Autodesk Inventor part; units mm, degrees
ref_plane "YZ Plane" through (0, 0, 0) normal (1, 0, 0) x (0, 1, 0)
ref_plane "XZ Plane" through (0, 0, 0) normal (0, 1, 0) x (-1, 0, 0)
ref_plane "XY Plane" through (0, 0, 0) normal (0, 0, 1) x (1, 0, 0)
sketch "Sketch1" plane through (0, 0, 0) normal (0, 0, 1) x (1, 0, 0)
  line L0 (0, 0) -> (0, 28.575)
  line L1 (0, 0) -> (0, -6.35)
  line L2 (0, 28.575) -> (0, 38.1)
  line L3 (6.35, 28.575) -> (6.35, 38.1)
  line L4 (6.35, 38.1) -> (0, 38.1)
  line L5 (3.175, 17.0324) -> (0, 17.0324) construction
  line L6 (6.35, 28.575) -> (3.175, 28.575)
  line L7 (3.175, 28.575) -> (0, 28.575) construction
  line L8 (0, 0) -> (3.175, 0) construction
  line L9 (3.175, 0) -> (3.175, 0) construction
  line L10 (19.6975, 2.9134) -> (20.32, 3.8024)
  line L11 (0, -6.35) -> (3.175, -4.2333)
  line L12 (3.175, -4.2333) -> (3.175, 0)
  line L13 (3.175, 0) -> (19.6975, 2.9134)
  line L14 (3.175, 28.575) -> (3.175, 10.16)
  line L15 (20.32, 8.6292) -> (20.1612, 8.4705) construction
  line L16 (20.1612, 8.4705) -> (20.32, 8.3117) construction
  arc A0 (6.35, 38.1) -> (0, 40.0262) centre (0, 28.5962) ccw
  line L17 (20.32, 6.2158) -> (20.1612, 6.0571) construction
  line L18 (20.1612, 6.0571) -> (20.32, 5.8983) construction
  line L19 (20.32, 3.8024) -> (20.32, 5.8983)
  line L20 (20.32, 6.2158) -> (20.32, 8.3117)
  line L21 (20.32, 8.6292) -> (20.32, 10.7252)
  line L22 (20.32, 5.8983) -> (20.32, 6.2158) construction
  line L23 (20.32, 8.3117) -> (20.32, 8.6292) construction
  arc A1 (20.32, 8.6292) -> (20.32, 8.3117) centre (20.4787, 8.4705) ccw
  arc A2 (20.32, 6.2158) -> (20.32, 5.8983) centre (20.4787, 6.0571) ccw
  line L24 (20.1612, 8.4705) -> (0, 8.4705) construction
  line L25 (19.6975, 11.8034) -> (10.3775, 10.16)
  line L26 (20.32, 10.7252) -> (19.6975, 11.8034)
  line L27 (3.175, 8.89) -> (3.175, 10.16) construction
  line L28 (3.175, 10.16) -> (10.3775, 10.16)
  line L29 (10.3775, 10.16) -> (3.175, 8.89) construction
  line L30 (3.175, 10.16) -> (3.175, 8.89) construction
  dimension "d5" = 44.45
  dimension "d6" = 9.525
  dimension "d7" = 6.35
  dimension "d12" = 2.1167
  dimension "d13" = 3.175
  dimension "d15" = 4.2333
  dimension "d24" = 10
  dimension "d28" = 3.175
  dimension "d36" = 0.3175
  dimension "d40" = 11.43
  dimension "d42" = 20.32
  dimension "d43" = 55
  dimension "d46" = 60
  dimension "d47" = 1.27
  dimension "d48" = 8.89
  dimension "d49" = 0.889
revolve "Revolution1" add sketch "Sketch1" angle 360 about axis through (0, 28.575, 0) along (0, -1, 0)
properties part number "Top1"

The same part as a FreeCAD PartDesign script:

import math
import FreeCAD as App
import Part
import Sketcher
Q = App.Units.Quantity

doc = App.newDocument("Part")
params = doc.addObject("Spreadsheet::Sheet", "Params")
for row, (alias, value) in enumerate([
    ("sketch1_width", "0.25 in"),
    ("sketch1_height", "1.75 in"),
    ("sketch1_width2", "0.125 in"),
    ("sketch1_height2", "0.375 in"),
    ("revolution_angle", "360 deg"),
], start=1):
    params.set(f"A{row}", alias)
    params.set(f"B{row}", "=" + value)
    params.setAlias(f"B{row}", alias)

body = doc.addObject("PartDesign::Body", "Body")

sketch1 = body.newObject("Sketcher::SketchObject", "Sketch")
sketch1.AttachmentSupport = (doc.getObject("XY_Plane"), [""])
sketch1.MapMode = "FlatFace"
sketch1.addGeometry(Part.LineSegment(App.Vector(0, 38.1, 0), App.Vector(0, -6.35, 0)), False)
sketch1.addGeometry(Part.LineSegment(App.Vector(0, -6.35, 0), App.Vector(3.17, -4.23, 0)), False)
sketch1.addGeometry(Part.LineSegment(App.Vector(3.17, -4.23, 0), App.Vector(3.17, 0, 0)), False)
sketch1.addGeometry(Part.LineSegment(App.Vector(3.17, 0, 0), App.Vector(19.7, 2.91, 0)), False)
sketch1.addGeometry(Part.LineSegment(App.Vector(19.7, 2.91, 0), App.Vector(20.32, 3.8, 0)), False)
sketch1.addGeometry(Part.LineSegment(App.Vector(20.32, 3.8, 0), App.Vector(20.32, 5.9, 0)), False)
sketch1.addGeometry(Part.ArcOfCircle(Part.Circle(App.Vector(20.48, 6.06, 0), App.Vector(0, 0, 1), 0.22), math.radians(135), math.radians(225)), False)
sketch1.addGeometry(Part.LineSegment(App.Vector(20.32, 6.22, 0), App.Vector(20.32, 8.31, 0)), False)
sketch1.addGeometry(Part.ArcOfCircle(Part.Circle(App.Vector(20.48, 8.47, 0), App.Vector(0, 0, 1), 0.22), math.radians(135), math.radians(225)), False)
sketch1.addGeometry(Part.LineSegment(App.Vector(20.32, 8.63, 0), App.Vector(20.32, 10.73, 0)), False)
sketch1.addGeometry(Part.LineSegment(App.Vector(20.32, 10.73, 0), App.Vector(19.7, 11.8, 0)), False)
sketch1.addGeometry(Part.LineSegment(App.Vector(19.7, 11.8, 0), App.Vector(10.38, 10.16, 0)), False)
sketch1.addGeometry(Part.LineSegment(App.Vector(10.38, 10.16, 0), App.Vector(3.17, 10.16, 0)), False)
sketch1.addGeometry(Part.LineSegment(App.Vector(3.17, 10.16, 0), App.Vector(3.17, 28.57, 0)), False)
sketch1.addGeometry(Part.LineSegment(App.Vector(3.17, 28.57, 0), App.Vector(6.35, 28.57, 0)), False)
sketch1.addGeometry(Part.LineSegment(App.Vector(6.35, 28.57, 0), App.Vector(6.35, 38.1, 0)), False)
sketch1.addGeometry(Part.LineSegment(App.Vector(6.35, 38.1, 0), App.Vector(0, 38.1, 0)), False)
sketch1.addConstraint(Sketcher.Constraint("Coincident", 0, 2, 1, 1))
sketch1.addConstraint(Sketcher.Constraint("Coincident", 1, 2, 2, 1))
sketch1.addConstraint(Sketcher.Constraint("Coincident", 2, 2, 3, 1))
sketch1.addConstraint(Sketcher.Constraint("Coincident", 3, 2, 4, 1))
sketch1.addConstraint(Sketcher.Constraint("Coincident", 4, 2, 5, 1))
sketch1.addConstraint(Sketcher.Constraint("Coincident", 5, 2, 6, 2))
sketch1.addConstraint(Sketcher.Constraint("Coincident", 6, 1, 7, 1))
sketch1.addConstraint(Sketcher.Constraint("Coincident", 7, 2, 8, 2))
sketch1.addConstraint(Sketcher.Constraint("Coincident", 8, 1, 9, 1))
sketch1.addConstraint(Sketcher.Constraint("Coincident", 9, 2, 10, 1))
sketch1.addConstraint(Sketcher.Constraint("Coincident", 10, 2, 11, 1))
sketch1.addConstraint(Sketcher.Constraint("Coincident", 11, 2, 12, 1))
sketch1.addConstraint(Sketcher.Constraint("Coincident", 12, 2, 13, 1))
sketch1.addConstraint(Sketcher.Constraint("Coincident", 13, 2, 14, 1))
sketch1.addConstraint(Sketcher.Constraint("Coincident", 14, 2, 15, 1))
sketch1.addConstraint(Sketcher.Constraint("Coincident", 15, 2, 16, 1))
sketch1.addConstraint(Sketcher.Constraint("Coincident", 16, 2, 0, 1))
sketch1.addConstraint(Sketcher.Constraint("Vertical", 0))
sketch1.addConstraint(Sketcher.Constraint("Vertical", 2))
sketch1.addConstraint(Sketcher.Constraint("Vertical", 5))
sketch1.addConstraint(Sketcher.Constraint("Vertical", 7))
sketch1.addConstraint(Sketcher.Constraint("Vertical", 9))
sketch1.addConstraint(Sketcher.Constraint("Horizontal", 12))
sketch1.addConstraint(Sketcher.Constraint("Vertical", 13))
sketch1.addConstraint(Sketcher.Constraint("Horizontal", 14))
sketch1.addConstraint(Sketcher.Constraint("Vertical", 15))
sketch1.addConstraint(Sketcher.Constraint("Horizontal", 16))
sketch1.addConstraint(Sketcher.Constraint("Equal", 6, 8))
sketch1.addConstraint(Sketcher.Constraint("PointOnObject", 0, 2, -2))
sketch1.addConstraint(Sketcher.Constraint("PointOnObject", 2, 2, -1))
sketch1.addConstraint(Sketcher.Constraint("Parallel", 3, 11))
sketch1.addConstraint(Sketcher.Constraint("Vertical", 6, 3, 8, 3))
sketch1.addConstraint(Sketcher.Constraint("Vertical", 5, 2, 6, 1))
sketch1.addConstraint(Sketcher.Constraint("Vertical", 7, 2, 8, 1))
sketch1.addConstraint(Sketcher.Constraint("Vertical", 3, 2, 10, 2))
sketch1.addConstraint(Sketcher.Constraint("Vertical", 2, 2, 12, 2))
sketch1.addConstraint(Sketcher.Constraint("Equal", 5, 7))
sketch1.addConstraint(Sketcher.Constraint("Equal", 7, 9))
sketch1.addConstraint(Sketcher.Constraint("Angle", 3, Q("10.0001 deg")))
sketch1.addConstraint(Sketcher.Constraint("DistanceX", 16, 2, 16, 1, Q("0.25 in")))
sketch1.addConstraint(Sketcher.Constraint("DistanceY", 0, 2, 0, 1, Q("1.75 in")))
sketch1.addConstraint(Sketcher.Constraint("DistanceX", -1, 1, 4, 2, Q("0.8 in")))
sketch1.addConstraint(Sketcher.Constraint("DistanceX", 14, 1, 14, 2, Q("0.125 in")))
sketch1.addConstraint(Sketcher.Constraint("DistanceY", 15, 1, 15, 2, Q("0.375 in")))
sketch1.addConstraint(Sketcher.Constraint("DistanceY", 0, 2, -1, 1, Q("0.25 in")))
sketch1.addConstraint(Sketcher.Constraint("Angle", 4, Q("54.9993 deg")))
sketch1.addConstraint(Sketcher.Constraint("Angle", 10, Q("120 deg")))
sketch1.addConstraint(Sketcher.Constraint("DistanceY", 3, 2, 4, 2, Q("0.035 in")))
sketch1.addConstraint(Sketcher.Constraint("DistanceY", 2, 1, 2, 2, Q("4.2333 mm")))
sketch1.addConstraint(Sketcher.Constraint("DistanceY", -1, 1, 11, 2, Q("0.4 in")))
sketch1.addConstraint(Sketcher.Constraint("DistanceY", 5, 2, 6, 1, Q("0.0125 in")))
sketch1.addConstraint(Sketcher.Constraint("Radius", 6, Q("0.2244 mm")))
sketch1.addConstraint(Sketcher.Constraint("Distance", 11, Q("0.3726 in")))
sketch1.setExpression("Constraints[39]", "Params.sketch1_width")
sketch1.setExpression("Constraints[40]", "Params.sketch1_height")
sketch1.setExpression("Constraints[42]", "Params.sketch1_width2")
sketch1.setExpression("Constraints[43]", "Params.sketch1_height2")
revolution = body.newObject("PartDesign::Revolution", "Revolution")
revolution.Profile = sketch1
revolution.ReferenceAxis = (sketch1, ["V_Axis"])
revolution.setExpression("Angle", "Params.revolution_angle")

doc.recompute()
